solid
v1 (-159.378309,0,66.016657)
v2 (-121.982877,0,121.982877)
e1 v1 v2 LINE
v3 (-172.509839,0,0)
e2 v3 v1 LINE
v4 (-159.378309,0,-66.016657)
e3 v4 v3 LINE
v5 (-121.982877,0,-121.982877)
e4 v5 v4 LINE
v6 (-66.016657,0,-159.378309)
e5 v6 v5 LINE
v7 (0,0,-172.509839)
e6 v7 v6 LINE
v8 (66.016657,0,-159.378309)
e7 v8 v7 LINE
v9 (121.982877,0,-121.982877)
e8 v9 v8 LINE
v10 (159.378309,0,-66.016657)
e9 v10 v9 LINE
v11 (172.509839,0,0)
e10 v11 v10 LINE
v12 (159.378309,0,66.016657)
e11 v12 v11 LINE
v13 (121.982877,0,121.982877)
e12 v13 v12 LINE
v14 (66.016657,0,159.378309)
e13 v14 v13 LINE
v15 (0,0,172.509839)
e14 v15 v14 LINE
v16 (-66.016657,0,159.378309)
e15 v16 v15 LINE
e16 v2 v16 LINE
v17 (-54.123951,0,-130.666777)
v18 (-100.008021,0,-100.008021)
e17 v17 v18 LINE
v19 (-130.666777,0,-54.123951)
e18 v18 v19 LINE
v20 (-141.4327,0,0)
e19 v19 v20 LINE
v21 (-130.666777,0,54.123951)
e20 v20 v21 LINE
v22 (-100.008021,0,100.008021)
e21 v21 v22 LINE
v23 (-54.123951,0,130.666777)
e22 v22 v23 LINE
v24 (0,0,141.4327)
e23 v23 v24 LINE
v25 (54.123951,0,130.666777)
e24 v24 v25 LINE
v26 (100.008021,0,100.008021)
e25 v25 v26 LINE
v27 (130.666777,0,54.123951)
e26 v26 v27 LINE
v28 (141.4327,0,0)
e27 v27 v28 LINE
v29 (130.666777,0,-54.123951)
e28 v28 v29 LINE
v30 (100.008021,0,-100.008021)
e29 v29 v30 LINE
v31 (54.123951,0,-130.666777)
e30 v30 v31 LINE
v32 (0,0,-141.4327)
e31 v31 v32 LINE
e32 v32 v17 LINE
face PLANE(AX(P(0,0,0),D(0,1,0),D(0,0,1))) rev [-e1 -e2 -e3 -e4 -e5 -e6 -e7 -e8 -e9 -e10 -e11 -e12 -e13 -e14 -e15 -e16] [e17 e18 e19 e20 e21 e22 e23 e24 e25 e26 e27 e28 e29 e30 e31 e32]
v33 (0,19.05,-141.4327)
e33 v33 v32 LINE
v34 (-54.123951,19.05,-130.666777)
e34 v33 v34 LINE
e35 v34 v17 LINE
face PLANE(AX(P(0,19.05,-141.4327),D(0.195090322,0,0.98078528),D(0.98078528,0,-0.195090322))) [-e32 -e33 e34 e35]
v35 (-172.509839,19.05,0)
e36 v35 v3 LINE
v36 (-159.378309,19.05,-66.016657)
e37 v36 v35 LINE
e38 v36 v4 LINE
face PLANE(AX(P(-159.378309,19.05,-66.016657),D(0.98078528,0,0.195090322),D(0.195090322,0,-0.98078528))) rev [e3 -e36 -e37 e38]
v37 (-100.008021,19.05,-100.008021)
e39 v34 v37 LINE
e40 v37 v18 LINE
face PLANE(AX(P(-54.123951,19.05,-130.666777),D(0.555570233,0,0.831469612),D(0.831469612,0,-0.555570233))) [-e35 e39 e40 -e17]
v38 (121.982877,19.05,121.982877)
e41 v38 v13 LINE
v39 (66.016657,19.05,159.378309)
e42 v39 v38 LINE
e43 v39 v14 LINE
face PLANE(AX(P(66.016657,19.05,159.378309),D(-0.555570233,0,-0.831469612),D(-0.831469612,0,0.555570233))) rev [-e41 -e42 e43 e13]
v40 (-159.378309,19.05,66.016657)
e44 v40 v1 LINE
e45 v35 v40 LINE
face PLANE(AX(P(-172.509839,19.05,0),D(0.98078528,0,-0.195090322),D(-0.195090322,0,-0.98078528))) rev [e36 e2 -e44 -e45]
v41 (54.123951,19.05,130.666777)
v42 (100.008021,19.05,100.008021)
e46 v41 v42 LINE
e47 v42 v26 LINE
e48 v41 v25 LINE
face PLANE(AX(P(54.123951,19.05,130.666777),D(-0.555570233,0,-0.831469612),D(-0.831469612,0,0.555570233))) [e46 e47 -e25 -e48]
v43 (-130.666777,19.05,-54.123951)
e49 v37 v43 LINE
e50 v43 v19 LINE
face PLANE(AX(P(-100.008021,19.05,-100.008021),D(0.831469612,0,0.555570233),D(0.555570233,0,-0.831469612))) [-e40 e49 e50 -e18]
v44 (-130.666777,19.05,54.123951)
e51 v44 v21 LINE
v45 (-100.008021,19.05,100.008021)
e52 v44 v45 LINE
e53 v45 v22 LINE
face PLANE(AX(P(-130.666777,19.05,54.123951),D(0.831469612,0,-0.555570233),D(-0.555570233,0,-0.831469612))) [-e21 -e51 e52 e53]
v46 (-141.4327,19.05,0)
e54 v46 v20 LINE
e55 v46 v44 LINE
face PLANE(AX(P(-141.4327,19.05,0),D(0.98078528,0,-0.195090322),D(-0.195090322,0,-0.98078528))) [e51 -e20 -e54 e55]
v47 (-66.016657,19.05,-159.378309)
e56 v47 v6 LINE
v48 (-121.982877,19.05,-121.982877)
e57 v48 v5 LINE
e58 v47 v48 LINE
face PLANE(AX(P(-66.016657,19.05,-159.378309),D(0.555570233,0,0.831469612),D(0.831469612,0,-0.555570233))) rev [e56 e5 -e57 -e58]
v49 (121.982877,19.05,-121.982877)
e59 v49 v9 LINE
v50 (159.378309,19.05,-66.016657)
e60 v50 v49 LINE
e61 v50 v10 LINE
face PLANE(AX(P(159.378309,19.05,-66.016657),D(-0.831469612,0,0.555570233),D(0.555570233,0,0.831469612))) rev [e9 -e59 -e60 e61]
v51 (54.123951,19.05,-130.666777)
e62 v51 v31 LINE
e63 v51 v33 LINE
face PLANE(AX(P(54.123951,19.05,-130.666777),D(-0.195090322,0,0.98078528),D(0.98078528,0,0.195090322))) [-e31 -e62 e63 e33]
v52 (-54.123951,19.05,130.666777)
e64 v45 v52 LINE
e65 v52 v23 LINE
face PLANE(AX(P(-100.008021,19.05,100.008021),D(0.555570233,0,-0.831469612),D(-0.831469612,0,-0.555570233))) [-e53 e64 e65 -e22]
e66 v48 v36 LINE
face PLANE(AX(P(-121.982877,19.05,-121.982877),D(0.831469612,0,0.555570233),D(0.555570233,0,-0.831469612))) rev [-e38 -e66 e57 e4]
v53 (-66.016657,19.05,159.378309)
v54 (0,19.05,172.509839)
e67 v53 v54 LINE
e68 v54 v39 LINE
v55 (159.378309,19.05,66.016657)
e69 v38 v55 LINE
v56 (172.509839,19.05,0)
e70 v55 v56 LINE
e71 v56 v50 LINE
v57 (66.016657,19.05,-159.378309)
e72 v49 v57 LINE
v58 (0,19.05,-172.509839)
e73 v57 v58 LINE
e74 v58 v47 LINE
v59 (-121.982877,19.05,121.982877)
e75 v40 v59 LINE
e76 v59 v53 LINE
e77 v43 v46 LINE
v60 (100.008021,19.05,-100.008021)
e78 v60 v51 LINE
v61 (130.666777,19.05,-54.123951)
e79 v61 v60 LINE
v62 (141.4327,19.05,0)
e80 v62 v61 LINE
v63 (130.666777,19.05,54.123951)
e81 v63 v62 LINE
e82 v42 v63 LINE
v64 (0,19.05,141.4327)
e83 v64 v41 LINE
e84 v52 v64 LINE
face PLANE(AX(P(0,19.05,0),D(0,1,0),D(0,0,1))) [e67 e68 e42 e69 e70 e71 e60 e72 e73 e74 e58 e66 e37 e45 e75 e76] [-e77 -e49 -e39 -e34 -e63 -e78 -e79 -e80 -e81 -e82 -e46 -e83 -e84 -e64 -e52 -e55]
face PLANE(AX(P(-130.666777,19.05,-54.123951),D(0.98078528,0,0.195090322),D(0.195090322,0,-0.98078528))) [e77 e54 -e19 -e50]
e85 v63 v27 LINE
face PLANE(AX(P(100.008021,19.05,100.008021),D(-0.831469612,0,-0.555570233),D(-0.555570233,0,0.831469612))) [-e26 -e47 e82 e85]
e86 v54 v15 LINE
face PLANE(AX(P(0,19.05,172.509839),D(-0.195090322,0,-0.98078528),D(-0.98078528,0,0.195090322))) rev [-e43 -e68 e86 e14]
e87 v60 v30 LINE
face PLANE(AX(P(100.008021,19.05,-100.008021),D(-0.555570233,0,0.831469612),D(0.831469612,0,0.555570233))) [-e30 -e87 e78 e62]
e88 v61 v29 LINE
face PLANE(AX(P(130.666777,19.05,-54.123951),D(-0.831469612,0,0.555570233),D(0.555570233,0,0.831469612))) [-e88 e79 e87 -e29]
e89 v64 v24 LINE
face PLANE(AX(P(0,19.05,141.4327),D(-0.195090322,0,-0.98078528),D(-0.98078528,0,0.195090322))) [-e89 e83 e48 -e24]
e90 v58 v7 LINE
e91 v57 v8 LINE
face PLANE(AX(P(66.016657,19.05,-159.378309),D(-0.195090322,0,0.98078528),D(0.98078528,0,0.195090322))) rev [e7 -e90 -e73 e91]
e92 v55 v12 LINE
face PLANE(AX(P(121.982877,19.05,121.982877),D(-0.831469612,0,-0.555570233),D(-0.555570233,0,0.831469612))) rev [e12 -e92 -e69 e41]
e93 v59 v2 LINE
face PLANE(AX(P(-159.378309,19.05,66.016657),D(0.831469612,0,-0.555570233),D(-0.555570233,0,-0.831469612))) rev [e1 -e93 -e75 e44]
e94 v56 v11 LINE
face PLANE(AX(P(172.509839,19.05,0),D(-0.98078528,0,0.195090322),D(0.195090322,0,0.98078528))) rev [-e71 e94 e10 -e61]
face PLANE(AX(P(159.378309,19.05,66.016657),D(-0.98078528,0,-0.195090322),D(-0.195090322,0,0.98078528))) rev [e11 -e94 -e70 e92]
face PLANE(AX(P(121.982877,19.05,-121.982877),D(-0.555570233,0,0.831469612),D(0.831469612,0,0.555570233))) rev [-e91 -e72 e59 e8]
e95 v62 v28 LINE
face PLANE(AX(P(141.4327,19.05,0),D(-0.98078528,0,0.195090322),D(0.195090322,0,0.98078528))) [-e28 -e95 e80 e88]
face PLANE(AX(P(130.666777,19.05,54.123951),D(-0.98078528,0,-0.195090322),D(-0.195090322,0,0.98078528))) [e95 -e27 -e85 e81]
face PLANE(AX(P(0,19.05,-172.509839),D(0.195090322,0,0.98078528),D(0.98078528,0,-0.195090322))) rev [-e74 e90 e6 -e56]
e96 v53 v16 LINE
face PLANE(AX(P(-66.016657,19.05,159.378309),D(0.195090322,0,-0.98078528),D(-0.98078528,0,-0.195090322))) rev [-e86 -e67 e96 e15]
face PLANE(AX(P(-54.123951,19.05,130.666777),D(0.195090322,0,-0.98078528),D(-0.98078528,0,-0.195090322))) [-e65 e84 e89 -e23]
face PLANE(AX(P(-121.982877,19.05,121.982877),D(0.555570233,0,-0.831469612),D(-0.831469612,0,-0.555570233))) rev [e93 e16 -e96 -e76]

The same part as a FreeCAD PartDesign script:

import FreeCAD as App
import Part
import Sketcher
Q = App.Units.Quantity


def add_polygon(sketch, points):
    """Adds a closed chain of lines whose ends are joined by coincident constraints."""
    first, n = sketch.GeometryCount, len(points)
    for a, b in zip(points, points[1:] + points[:1]):
        sketch.addGeometry(Part.LineSegment(App.Vector(*a, 0), App.Vector(*b, 0)), False)
    for i in range(n):
        sketch.addConstraint(Sketcher.Constraint("Coincident", first + i, 2, first + (i + 1) % n, 1))

doc = App.newDocument("Part")
body = doc.addObject("PartDesign::Body", "Body")

sketch1 = body.newObject("Sketcher::SketchObject", "Sketch")
sketch1.AttachmentSupport = (doc.getObject("XZ_Plane"), [""])
sketch1.MapMode = "FlatFace"
add_polygon(sketch1, [(173, 0), (159, -66), (122, -122), (66, -159), (0, -173), (-66, -159), (-122, -122), (-159, -66), (-173, 0), (-159, 66), (-122, 122), (-66, 159), (0, 173), (66, 159), (122, 122), (159, 66)])
add_polygon(sketch1, [(131, -54), (141, 0), (131, 54), (100, 100), (54, 131), (0, 141), (-54, 131), (-100, 100), (-131, 54), (-141, 0), (-131, -54), (-100, -100), (-54, -131), (0, -141), (54, -131), (100, -100)])
sketch1.addConstraint([
    Sketcher.Constraint("Symmetric", 0, 2, 8, 2, -1, 1),
    Sketcher.Constraint("Symmetric", 1, 2, 9, 2, -1, 1),
    Sketcher.Constraint("Symmetric", 2, 2, 10, 2, -1, 1),
    Sketcher.Constraint("Symmetric", 3, 2, 11, 2, -1, 1),
    Sketcher.Constraint("Symmetric", 4, 2, 12, 2, -1, 1),
    Sketcher.Constraint("Symmetric", 5, 2, 13, 2, -1, 1),
    Sketcher.Constraint("Symmetric", 6, 2, 14, 2, -1, 1),
    Sketcher.Constraint("Symmetric", 7, 2, 15, 2, -1, 1),
    Sketcher.Constraint("Symmetric", 16, 2, 24, 2, -1, 1),
    Sketcher.Constraint("Symmetric", 17, 2, 25, 2, -1, 1),
    Sketcher.Constraint("Symmetric", 18, 2, 26, 2, -1, 1),
    Sketcher.Constraint("Symmetric", 19, 2, 27, 2, -1, 1),
    Sketcher.Constraint("Symmetric", 20, 2, 28, 2, -1, 1),
    Sketcher.Constraint("Symmetric", 21, 2, 29, 2, -1, 1),
    Sketcher.Constraint("Symmetric", 22, 2, 30, 2, -1, 1),
    Sketcher.Constraint("Symmetric", 23, 2, 31, 2, -1, 1),
    Sketcher.Constraint("Symmetric", 2, 2, 4, 2, -2),
    Sketcher.Constraint("Symmetric", 1, 2, 5, 2, -2),
    Sketcher.Constraint("Symmetric", 0, 2, 6, 2, -2),
    Sketcher.Constraint("Symmetric", 19, 2, 21, 2, -2),
    Sketcher.Constraint("Symmetric", 18, 2, 22, 2, -2),
    Sketcher.Constraint("Symmetric", 17, 2, 23, 2, -2),
    Sketcher.Constraint("PointOnObject", 3, 2, -2),
    Sketcher.Constraint("PointOnObject", 7, 2, -1),
    Sketcher.Constraint("PointOnObject", 16, 2, -1),
    Sketcher.Constraint("PointOnObject", 20, 2, -2),
    Sketcher.Constraint("Perpendicular", 0, 4),
    Sketcher.Constraint("Perpendicular", 1, 5),
    Sketcher.Constraint("Perpendicular", 12, 16),
    Sketcher.Constraint("Parallel", 14, 18),
    Sketcher.Constraint("Parallel", 13, 19),
    Sketcher.Constraint("Perpendicular", 16, 20),
    Sketcher.Constraint("Equal", 0, 1),
    Sketcher.Constraint("Equal", 1, 2),
    Sketcher.Constraint("Equal", 2, 3),
    Sketcher.Constraint("Equal", 17, 18),
    Sketcher.Constraint("Equal", 18, 19),
    Sketcher.Constraint("Equal", 19, 20),
    Sketcher.Constraint("Distance", 0, Q("2.65 in")),
    Sketcher.Constraint("Angle", 0, Q("-101.25 deg")),
    Sketcher.Constraint("Angle", 1, Q("-123.75 deg")),
    Sketcher.Constraint("DistanceX", -1, 1, 16, 2, 141.4327),
])
pad1 = body.newObject("PartDesign::Pad", "Pad")
pad1.Profile = sketch1
pad1.Length = Q("0.75 in")
pad1.Reversed = True

doc.recompute()
